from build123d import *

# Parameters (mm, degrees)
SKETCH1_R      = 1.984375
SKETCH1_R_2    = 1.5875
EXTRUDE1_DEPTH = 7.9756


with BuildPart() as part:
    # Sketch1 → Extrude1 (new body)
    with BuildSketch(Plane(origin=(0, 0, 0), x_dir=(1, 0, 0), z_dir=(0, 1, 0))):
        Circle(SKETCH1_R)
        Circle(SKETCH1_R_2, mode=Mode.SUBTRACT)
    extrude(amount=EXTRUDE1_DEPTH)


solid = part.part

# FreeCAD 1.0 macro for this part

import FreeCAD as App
import Part
import Sketcher
from FreeCAD import Vector
Q = App.Units.Quantity

doc = App.newDocument("Part")
body = doc.addObject("PartDesign::Body", "Body")

sketch1 = body.newObject("Sketcher::SketchObject", "Sketch")
sketch1.AttachmentSupport = (doc.getObject("XZ_Plane"), [""])
sketch1.MapMode = "FlatFace"
sketch1.addGeometry([
    Part.Circle(Vector(0, 0, 0), Vector(0, 0, 1), 1.984375),
    Part.Circle(Vector(0, 0, 0), Vector(0, 0, 1), 1.5875),
], False)
sketch1.addConstraint([
    Sketcher.Constraint("Coincident", 0, 3, -1, 1),
    Sketcher.Constraint("Coincident", 1, 3, -1, 1),
    Sketcher.Constraint("Diameter", 0, Q("0.15625 in")),
    Sketcher.Constraint("Diameter", 1, Q("0.125 in")),
])
pad1 = body.newObject("PartDesign::Pad", "Pad")
pad1.Profile = sketch1
pad1.Length = Q("0.314 in")
pad1.Reversed = True

doc.recompute()
